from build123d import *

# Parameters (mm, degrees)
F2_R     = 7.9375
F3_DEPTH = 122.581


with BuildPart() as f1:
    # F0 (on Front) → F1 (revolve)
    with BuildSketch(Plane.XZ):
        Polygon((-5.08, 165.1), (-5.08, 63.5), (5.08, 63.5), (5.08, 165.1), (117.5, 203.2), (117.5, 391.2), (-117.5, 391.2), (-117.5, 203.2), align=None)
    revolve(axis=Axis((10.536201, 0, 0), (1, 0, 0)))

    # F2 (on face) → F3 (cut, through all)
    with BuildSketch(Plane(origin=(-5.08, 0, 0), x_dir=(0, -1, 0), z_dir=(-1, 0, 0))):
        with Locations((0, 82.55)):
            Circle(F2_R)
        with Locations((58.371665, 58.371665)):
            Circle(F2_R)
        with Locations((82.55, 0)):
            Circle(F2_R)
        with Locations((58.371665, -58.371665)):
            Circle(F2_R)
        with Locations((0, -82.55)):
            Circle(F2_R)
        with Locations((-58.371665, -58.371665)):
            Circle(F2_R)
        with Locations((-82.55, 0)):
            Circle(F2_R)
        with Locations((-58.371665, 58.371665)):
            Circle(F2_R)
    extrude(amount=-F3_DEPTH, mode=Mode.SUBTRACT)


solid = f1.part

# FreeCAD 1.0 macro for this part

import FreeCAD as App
import Part
import Sketcher
Q = App.Units.Quantity

doc = App.newDocument("Part")
body = doc.addObject("PartDesign::Body", "Body")

sketch1 = body.newObject("Sketcher::SketchObject", "Sketch")
sketch1.AttachmentSupport = (doc.getObject("XZ_Plane"), [""])
sketch1.MapMode = "FlatFace"
sketch1.addGeometry(Part.LineSegment(App.Vector(-5, 165, 0), App.Vector(-5, 64, 0)), False)
sketch1.addGeometry(Part.LineSegment(App.Vector(-5, 64, 0), App.Vector(5, 64, 0)), False)
sketch1.addGeometry(Part.LineSegment(App.Vector(5, 64, 0), App.Vector(5, 165, 0)), False)
sketch1.addGeometry(Part.LineSegment(App.Vector(5, 165, 0), App.Vector(118, 203, 0)), False)
sketch1.addGeometry(Part.LineSegment(App.Vector(118, 203, 0), App.Vector(118, 391, 0)), False)
sketch1.addGeometry(Part.LineSegment(App.Vector(118, 391, 0), App.Vector(-118, 391, 0)), False)
sketch1.addGeometry(Part.LineSegment(App.Vector(-118, 391, 0), App.Vector(-118, 203, 0)), False)
sketch1.addGeometry(Part.LineSegment(App.Vector(-118, 203, 0), App.Vector(-5, 165, 0)), False)
sketch1.addConstraint(Sketcher.Constraint("Coincident", 0, 2, 1, 1))
sketch1.addConstraint(Sketcher.Constraint("Coincident", 1, 2, 2, 1))
sketch1.addConstraint(Sketcher.Constraint("Coincident", 2, 2, 3, 1))
sketch1.addConstraint(Sketcher.Constraint("Coincident", 3, 2, 4, 1))
sketch1.addConstraint(Sketcher.Constraint("Coincident", 4, 2, 5, 1))
sketch1.addConstraint(Sketcher.Constraint("Coincident", 5, 2, 6, 1))
sketch1.addConstraint(Sketcher.Constraint("Coincident", 6, 2, 7, 1))
sketch1.addConstraint(Sketcher.Constraint("Coincident", 7, 2, 0, 1))
sketch1.addConstraint(Sketcher.Constraint("Vertical", 0))
sketch1.addConstraint(Sketcher.Constraint("Horizontal", 1))
sketch1.addConstraint(Sketcher.Constraint("Vertical", 2))
sketch1.addConstraint(Sketcher.Constraint("Vertical", 4))
sketch1.addConstraint(Sketcher.Constraint("Horizontal", 5))
sketch1.addConstraint(Sketcher.Constraint("Vertical", 6))
sketch1.addConstraint(Sketcher.Constraint("Symmetric", 3, 2, 6, 2, -2))
sketch1.addConstraint(Sketcher.Constraint("Symmetric", 2, 2, 7, 2, -2))
sketch1.addConstraint(Sketcher.Constraint("DistanceY", 0, 2, 0, 1, Q("4 in")))
sketch1.addConstraint(Sketcher.Constraint("DistanceX", 1, 1, 1, 2, Q("0.4 in")))
sketch1.addConstraint(Sketcher.Constraint("DistanceY", -1, 1, 3, 2, Q("8 in")))
sketch1.addConstraint(Sketcher.Constraint("DistanceY", -1, 1, 0, 2, Q("2.5 in")))
sketch1.addConstraint(Sketcher.Constraint("DistanceX", 5, 2, 5, 1, 235.0))
sketch1.addConstraint(Sketcher.Constraint("DistanceY", 4, 1, 4, 2, 188.0))
revolution = body.newObject("PartDesign::Revolution", "Revolution")
revolution.Profile = sketch1
revolution.ReferenceAxis = (sketch1, ["H_Axis"])
revolution.Angle = 360

sketch2 = body.newObject("Sketcher::SketchObject", "Sketch001")
sketch2.AttachmentSupport = (doc.getObject("YZ_Plane"), [""])
sketch2.MapMode = "FlatFace"
sketch2.AttachmentOffset = App.Placement(App.Vector(0, 0, -0.2 * 25.4), App.Rotation())
sketch2.addGeometry(Part.Circle(App.Vector(0, 83, 0), App.Vector(0, 0, 1), 8), False)
sketch2.addGeometry(Part.Circle(App.Vector(-58, 58, 0), App.Vector(0, 0, 1), 8), False)
sketch2.addGeometry(Part.Circle(App.Vector(-83, 0, 0), App.Vector(0, 0, 1), 8), False)
sketch2.addGeometry(Part.Circle(App.Vector(-58, -58, 0), App.Vector(0, 0, 1), 8), False)
sketch2.addGeometry(Part.Circle(App.Vector(0, -83, 0), App.Vector(0, 0, 1), 8), False)
sketch2.addGeometry(Part.Circle(App.Vector(58, -58, 0), App.Vector(0, 0, 1), 8), False)
sketch2.addGeometry(Part.Circle(App.Vector(83, 0, 0), App.Vector(0, 0, 1), 8), False)
sketch2.addGeometry(Part.Circle(App.Vector(58, 58, 0), App.Vector(0, 0, 1), 8), False)
sketch2.addConstraint(Sketcher.Constraint("Equal", 0, 1))
sketch2.addConstraint(Sketcher.Constraint("Equal", 1, 2))
sketch2.addConstraint(Sketcher.Constraint("Equal", 2, 3))
sketch2.addConstraint(Sketcher.Constraint("Equal", 3, 4))
sketch2.addConstraint(Sketcher.Constraint("Equal", 4, 5))
sketch2.addConstraint(Sketcher.Constraint("Equal", 5, 6))
sketch2.addConstraint(Sketcher.Constraint("Equal", 6, 7))
sketch2.addConstraint(Sketcher.Constraint("Symmetric", 0, 3, 4, 3, -1, 1))
sketch2.addConstraint(Sketcher.Constraint("Symmetric", 1, 3, 5, 3, -1, 1))
sketch2.addConstraint(Sketcher.Constraint("Symmetric", 2, 3, 6, 3, -1, 1))
sketch2.addConstraint(Sketcher.Constraint("Symmetric", 3, 3, 7, 3, -1, 1))
sketch2.addConstraint(Sketcher.Constraint("Symmetric", 3, 3, 5, 3, -2))
sketch2.addConstraint(Sketcher.Constraint("PointOnObject", 0, 3, -2))
sketch2.addConstraint(Sketcher.Constraint("PointOnObject", 2, 3, -1))
sketch2.addConstraint(Sketcher.Constraint("Diameter", 0, Q("0.625 in")))
sketch2.addConstraint(Sketcher.Constraint("DistanceY", 4, 3, 0, 3, Q("6.5 in")))
sketch2.addConstraint(Sketcher.Constraint("DistanceX", 2, 3, -1, 1, Q("3.25 in")))
sketch2.addConstraint(Sketcher.Constraint("DistanceY", 3, 3, 1, 3, 116.74333))
sketch2.addConstraint(Sketcher.Constraint("DistanceX", 3, 3, 5, 3, 116.74333))
pocket1 = body.newObject("PartDesign::Pocket", "Pocket")
pocket1.Profile = sketch2
pocket1.Type = "ThroughAll"
pocket1.Reversed = True

doc.recompute()
